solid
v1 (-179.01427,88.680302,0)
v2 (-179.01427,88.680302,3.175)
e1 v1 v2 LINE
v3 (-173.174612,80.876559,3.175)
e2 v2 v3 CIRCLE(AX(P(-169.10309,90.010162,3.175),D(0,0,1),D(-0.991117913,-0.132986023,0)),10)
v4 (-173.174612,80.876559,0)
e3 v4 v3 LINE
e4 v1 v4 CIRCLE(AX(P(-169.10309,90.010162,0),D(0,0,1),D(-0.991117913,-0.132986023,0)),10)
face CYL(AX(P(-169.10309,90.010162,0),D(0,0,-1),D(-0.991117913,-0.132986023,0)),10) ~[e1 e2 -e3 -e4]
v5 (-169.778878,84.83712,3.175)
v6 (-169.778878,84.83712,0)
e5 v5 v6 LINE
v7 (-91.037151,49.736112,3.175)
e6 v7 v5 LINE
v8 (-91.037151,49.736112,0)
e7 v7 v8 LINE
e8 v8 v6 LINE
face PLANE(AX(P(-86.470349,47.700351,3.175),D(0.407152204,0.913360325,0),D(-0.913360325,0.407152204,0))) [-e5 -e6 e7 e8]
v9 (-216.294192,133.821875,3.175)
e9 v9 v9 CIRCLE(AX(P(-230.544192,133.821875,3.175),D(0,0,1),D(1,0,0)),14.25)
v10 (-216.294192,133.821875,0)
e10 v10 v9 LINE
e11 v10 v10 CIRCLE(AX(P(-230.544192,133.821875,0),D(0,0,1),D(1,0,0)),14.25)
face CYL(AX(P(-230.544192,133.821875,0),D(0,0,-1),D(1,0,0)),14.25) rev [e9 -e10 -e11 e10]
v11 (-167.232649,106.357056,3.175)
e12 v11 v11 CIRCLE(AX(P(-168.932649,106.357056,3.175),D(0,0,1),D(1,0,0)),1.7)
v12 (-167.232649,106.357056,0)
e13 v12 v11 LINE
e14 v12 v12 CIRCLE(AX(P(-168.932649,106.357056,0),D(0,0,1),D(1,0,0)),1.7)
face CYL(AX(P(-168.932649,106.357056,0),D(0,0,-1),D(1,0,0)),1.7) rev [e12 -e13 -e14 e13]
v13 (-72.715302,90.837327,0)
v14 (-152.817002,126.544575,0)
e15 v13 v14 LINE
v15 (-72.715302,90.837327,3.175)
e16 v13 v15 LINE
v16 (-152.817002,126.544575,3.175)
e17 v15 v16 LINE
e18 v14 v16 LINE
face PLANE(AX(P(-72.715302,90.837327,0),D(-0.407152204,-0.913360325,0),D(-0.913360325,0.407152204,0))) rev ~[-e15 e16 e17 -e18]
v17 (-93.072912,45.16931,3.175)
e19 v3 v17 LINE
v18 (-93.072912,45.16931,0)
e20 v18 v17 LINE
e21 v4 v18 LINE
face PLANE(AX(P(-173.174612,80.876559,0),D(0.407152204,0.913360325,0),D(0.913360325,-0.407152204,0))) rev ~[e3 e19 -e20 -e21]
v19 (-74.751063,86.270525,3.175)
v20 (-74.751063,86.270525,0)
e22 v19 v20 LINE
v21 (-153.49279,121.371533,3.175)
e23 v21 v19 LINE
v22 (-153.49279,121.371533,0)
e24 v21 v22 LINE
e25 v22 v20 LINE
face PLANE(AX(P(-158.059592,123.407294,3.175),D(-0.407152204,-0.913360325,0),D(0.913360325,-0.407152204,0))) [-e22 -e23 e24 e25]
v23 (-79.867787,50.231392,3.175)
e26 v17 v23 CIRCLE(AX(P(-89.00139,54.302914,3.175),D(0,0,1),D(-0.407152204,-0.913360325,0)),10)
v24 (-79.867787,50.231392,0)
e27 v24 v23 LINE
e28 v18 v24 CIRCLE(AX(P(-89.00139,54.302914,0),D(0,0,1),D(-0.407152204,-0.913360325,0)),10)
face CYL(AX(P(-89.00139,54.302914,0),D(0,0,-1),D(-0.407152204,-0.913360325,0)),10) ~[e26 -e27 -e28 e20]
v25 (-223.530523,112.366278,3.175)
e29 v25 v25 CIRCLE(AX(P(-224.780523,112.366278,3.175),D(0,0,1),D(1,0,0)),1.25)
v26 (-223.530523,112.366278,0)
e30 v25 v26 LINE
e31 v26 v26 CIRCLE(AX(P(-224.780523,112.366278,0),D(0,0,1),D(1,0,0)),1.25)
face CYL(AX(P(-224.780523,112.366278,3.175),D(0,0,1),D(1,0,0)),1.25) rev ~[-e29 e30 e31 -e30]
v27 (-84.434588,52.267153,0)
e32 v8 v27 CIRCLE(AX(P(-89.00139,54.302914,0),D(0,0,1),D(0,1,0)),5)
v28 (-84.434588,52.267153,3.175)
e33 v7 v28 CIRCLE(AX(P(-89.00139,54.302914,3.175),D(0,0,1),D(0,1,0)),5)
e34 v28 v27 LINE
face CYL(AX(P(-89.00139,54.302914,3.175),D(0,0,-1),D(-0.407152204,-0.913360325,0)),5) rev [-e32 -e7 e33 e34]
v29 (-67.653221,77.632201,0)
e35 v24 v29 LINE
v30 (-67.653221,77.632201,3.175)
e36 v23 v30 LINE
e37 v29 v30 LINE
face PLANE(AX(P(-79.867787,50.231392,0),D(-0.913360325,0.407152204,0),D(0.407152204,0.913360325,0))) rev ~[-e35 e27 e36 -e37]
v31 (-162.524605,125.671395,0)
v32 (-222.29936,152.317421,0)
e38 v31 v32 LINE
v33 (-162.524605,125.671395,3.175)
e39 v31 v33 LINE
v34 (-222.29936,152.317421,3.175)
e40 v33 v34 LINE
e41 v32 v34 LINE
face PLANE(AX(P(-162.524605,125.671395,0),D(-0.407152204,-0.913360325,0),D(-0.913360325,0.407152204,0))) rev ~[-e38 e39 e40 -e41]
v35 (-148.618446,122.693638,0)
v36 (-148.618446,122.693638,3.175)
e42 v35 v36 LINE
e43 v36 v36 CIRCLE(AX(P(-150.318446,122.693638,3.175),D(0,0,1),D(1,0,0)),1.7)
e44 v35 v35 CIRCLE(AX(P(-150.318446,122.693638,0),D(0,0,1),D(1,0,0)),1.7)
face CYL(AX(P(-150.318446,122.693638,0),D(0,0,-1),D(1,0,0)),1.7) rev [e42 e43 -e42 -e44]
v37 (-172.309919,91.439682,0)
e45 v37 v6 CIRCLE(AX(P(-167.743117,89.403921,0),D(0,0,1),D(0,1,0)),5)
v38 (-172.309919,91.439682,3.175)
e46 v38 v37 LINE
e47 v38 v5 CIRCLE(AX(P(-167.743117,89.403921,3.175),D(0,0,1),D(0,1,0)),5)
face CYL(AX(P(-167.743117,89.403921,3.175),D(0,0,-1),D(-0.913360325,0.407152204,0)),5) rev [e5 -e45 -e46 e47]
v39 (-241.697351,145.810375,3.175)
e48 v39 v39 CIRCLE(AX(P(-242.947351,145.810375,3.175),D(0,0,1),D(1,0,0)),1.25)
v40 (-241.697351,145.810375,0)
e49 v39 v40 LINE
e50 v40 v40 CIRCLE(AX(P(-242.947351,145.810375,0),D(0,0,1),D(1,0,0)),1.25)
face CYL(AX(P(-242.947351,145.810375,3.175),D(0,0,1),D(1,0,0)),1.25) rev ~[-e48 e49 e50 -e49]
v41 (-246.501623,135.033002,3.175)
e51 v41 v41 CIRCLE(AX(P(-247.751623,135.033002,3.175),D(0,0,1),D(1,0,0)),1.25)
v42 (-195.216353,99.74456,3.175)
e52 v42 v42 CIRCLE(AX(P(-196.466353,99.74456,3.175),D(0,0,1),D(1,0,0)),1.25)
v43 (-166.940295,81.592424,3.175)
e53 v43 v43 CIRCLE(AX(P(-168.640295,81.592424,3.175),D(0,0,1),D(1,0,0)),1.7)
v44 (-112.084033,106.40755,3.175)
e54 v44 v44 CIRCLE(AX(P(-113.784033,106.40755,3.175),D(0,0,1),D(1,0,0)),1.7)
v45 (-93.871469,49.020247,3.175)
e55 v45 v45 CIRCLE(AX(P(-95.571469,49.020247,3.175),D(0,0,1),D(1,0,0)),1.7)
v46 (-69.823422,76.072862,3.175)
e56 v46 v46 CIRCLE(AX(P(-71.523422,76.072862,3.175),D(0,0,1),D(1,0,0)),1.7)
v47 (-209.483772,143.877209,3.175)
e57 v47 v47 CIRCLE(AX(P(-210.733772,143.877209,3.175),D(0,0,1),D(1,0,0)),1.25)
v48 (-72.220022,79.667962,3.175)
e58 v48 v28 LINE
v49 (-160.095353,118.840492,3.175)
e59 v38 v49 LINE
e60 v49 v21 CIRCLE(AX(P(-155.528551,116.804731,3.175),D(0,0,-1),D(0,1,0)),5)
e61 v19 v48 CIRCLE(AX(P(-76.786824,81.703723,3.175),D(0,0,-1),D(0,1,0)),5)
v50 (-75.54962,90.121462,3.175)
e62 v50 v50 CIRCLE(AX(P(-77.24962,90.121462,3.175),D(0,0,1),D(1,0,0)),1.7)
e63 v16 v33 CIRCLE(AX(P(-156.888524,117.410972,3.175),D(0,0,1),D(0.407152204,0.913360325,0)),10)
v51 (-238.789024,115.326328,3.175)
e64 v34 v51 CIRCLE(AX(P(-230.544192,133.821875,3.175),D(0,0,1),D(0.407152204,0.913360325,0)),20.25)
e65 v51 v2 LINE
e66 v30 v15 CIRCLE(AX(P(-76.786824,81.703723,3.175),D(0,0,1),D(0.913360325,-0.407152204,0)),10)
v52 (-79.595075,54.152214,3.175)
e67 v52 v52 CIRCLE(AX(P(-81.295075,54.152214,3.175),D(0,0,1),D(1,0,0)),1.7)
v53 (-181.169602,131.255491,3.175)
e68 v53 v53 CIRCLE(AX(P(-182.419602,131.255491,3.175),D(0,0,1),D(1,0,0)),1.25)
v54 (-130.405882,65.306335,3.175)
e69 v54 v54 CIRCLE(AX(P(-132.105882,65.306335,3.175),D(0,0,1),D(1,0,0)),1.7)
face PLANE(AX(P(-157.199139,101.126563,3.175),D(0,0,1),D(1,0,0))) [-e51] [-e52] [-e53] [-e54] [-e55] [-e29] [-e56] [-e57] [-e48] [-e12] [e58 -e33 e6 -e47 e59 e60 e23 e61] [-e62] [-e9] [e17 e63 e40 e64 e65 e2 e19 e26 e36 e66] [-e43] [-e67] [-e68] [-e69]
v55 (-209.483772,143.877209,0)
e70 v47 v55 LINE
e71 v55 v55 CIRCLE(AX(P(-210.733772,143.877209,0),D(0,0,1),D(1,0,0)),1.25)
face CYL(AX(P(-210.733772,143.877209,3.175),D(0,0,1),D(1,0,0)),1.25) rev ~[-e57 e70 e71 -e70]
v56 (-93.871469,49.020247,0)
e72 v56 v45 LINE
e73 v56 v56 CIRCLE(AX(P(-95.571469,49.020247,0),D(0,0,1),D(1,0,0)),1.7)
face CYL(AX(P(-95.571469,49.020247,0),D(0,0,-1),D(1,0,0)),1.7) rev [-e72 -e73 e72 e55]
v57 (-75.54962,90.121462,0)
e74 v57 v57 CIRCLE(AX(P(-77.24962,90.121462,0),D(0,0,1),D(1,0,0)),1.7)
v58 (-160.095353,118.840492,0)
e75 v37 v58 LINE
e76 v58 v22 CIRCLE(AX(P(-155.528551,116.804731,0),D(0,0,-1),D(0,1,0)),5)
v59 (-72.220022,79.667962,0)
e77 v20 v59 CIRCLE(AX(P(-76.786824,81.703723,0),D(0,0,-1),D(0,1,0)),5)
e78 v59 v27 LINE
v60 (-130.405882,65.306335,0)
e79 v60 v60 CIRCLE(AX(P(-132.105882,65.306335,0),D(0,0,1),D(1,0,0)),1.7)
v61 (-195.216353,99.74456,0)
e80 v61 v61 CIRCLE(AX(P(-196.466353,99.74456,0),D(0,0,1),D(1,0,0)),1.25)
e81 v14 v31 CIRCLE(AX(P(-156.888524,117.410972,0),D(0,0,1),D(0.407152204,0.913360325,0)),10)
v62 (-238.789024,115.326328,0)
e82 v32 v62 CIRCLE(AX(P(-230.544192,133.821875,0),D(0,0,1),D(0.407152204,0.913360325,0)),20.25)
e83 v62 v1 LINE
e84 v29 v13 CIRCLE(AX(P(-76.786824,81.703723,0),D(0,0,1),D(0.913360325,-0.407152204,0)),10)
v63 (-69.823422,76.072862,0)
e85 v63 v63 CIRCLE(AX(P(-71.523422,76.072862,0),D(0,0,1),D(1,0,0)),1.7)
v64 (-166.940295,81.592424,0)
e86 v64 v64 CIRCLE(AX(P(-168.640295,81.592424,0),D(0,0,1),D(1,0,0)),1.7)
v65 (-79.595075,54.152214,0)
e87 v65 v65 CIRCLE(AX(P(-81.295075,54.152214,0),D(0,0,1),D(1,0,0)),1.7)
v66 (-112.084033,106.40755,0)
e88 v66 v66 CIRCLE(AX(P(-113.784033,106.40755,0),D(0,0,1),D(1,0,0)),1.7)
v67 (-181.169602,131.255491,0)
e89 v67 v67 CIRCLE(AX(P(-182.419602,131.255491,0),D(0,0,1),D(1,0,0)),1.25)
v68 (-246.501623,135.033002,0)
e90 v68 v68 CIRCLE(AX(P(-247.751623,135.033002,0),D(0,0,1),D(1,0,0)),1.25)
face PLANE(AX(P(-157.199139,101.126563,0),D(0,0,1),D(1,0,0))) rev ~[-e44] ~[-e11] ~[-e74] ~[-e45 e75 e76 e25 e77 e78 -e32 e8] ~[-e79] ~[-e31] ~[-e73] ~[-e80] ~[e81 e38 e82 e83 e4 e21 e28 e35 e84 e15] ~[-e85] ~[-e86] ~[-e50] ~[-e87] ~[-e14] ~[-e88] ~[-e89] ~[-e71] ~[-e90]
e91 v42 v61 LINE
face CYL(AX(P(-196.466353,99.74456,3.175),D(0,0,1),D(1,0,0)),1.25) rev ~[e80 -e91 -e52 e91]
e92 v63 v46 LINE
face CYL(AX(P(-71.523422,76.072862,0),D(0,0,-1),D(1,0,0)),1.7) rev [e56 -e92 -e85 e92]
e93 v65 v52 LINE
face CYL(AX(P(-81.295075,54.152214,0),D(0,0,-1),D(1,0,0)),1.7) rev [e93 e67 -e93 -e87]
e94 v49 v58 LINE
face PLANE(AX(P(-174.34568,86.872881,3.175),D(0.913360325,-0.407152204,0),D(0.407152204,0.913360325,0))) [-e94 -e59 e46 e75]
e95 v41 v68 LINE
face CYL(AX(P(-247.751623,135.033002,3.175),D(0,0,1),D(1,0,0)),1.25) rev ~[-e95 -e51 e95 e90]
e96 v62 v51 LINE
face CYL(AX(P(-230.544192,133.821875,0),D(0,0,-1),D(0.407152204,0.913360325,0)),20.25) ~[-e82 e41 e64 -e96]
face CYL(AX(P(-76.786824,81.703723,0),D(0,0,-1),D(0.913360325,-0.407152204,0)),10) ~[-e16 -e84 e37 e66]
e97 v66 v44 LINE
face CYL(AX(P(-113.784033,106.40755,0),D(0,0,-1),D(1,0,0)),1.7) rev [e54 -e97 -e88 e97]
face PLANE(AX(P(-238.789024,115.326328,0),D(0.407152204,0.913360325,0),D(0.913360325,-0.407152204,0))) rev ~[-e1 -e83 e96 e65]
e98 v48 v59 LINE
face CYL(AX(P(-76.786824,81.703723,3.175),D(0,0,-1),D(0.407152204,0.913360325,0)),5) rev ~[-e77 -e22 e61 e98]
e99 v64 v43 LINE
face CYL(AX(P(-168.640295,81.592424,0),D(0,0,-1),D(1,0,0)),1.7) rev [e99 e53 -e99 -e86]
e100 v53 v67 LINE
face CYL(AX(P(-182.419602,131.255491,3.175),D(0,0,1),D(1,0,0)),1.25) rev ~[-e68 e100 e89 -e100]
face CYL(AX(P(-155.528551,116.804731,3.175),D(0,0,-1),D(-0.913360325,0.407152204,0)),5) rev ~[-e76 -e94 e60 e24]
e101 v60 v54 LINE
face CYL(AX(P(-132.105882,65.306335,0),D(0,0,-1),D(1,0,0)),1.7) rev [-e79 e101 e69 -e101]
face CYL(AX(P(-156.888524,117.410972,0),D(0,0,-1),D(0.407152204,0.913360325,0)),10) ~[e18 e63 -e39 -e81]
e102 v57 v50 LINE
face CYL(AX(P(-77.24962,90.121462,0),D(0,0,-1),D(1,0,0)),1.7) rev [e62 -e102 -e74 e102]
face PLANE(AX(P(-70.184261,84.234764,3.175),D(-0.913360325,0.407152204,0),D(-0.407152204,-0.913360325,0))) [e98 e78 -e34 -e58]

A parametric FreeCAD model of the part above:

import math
import FreeCAD as App
import Part
import Sketcher

V = App.Vector


def edges_at(feature, points):
    """Names of the edges that pass closest to the given points."""
    edges = feature.Shape.Edges
    near = lambda p: min(range(len(edges)), key=lambda i: edges[i].distToShape(Part.Vertex(*p))[0])
    return sorted({f"Edge{near(p) + 1}" for p in points})

doc = App.newDocument("Part")
params = doc.addObject("Spreadsheet::Sheet", "Params")
for row, (alias, value) in enumerate([
    ("sketch1_radius", "10 mm"),
    ("sketch1_diameter", "3.4 mm"),
    ("sketch1_diameter2", "28.5 mm"),
    ("sketch1_radius2", "20.25 mm"),
    ("sketch1_length", "30 mm"),
    ("pad1_length", "3.175 mm"),
    ("sketch2_diameter", "2.5 mm"),
    ("sketch3_length", "40 mm"),
    ("pocket2_length", "10 mm"),
    ("fillet_radius", "5 mm"),
    ("fillet2_radius", "5 mm"),
], start=1):
    params.set(f"A{row}", alias)
    params.set(f"B{row}", "=" + value)
    params.setAlias(f"B{row}", alias)

body = doc.addObject("PartDesign::Body", "Body")

# Sketch on XY plane
sketch1 = body.newObject("Sketcher::SketchObject", "Sketch")
sketch1.AttachmentSupport = (doc.getObject("XY_Plane"), [""])
sketch1.MapMode = "FlatFace"
sketch1.addGeometry([
    Part.LineSegment(V(-72.7, 90.8, 0), V(-152.8, 126.5, 0)),  # 0
    Part.ArcOfCircle(Part.Circle(V(-156.9, 117.4, 0), V(0, 0, 1), 10), math.radians(66), math.radians(124)),  # 1
    Part.LineSegment(V(-162.5, 125.7, 0), V(-222.3, 152.3, 0)),  # 2
    Part.ArcOfCircle(Part.Circle(V(-230.5, 133.8, 0), V(0, 0, 1), 20.2), math.radians(66), math.radians(246)),  # 3
    Part.LineSegment(V(-238.8, 115.3, 0), V(-179, 88.7, 0)),  # 4
    Part.ArcOfCircle(Part.Circle(V(-169.1, 90, 0), V(0, 0, 1), 10), math.radians(-172), math.radians(-114)),  # 5
    Part.LineSegment(V(-173.2, 80.9, 0), V(-93.1, 45.2, 0)),  # 6
    Part.ArcOfCircle(Part.Circle(V(-89, 54.3, 0), V(0, 0, 1), 10), math.radians(-114), math.radians(-24)),  # 7
    Part.LineSegment(V(-79.9, 50.2, 0), V(-67.7, 77.6, 0)),  # 8
    Part.ArcOfCircle(Part.Circle(V(-76.8, 81.7, 0), V(0, 0, 1), 10), math.radians(-24), math.radians(66)),  # 9
    Part.Circle(V(-168.6, 81.6, 0), V(0, 0, 1), 1.7),  # 10
    Part.Circle(V(-132.1, 65.3, 0), V(0, 0, 1), 1.7),  # 11
    Part.Circle(V(-95.6, 49, 0), V(0, 0, 1), 1.7),  # 12
    Part.Circle(V(-81.3, 54.2, 0), V(0, 0, 1), 1.7),  # 13
    Part.Circle(V(-71.5, 76.1, 0), V(0, 0, 1), 1.7),  # 14
    Part.Circle(V(-77.2, 90.1, 0), V(0, 0, 1), 1.7),  # 15
    Part.Circle(V(-168.9, 106.4, 0), V(0, 0, 1), 1.7),  # 16
    Part.Circle(V(-230.5, 133.8, 0), V(0, 0, 1), 14.2),  # 17
    Part.Circle(V(-113.8, 106.4, 0), V(0, 0, 1), 1.7),  # 18
    Part.Circle(V(-150.3, 122.7, 0), V(0, 0, 1), 1.7),  # 19
], False)
sketch1.addConstraint([
    Sketcher.Constraint("Tangent", 0, 2, 1, 1),
    Sketcher.Constraint("Coincident", 1, 2, 2, 1),
    Sketcher.Constraint("Tangent", 2, 2, 3, 1),
    Sketcher.Constraint("Tangent", 3, 2, 4, 1),
    Sketcher.Constraint("Coincident", 4, 2, 5, 1),
    Sketcher.Constraint("Tangent", 5, 2, 6, 1),
    Sketcher.Constraint("Tangent", 6, 2, 7, 1),
    Sketcher.Constraint("Tangent", 7, 2, 8, 1),
    Sketcher.Constraint("Tangent", 8, 2, 9, 1),
    Sketcher.Constraint("Tangent", 9, 2, 0, 1),
    Sketcher.Constraint("Coincident", 17, 3, 3, 3),
    Sketcher.Constraint("Equal", 1, 5),
    Sketcher.Constraint("Equal", 5, 7),
    Sketcher.Constraint("Equal", 7, 9),
    Sketcher.Constraint("Equal", 10, 11),
    Sketcher.Constraint("Equal", 11, 12),
    Sketcher.Constraint("Equal", 12, 13),
    Sketcher.Constraint("Equal", 13, 14),
    Sketcher.Constraint("Equal", 14, 15),
    Sketcher.Constraint("Equal", 15, 16),
    Sketcher.Constraint("Equal", 16, 18),
    Sketcher.Constraint("Equal", 18, 19),
    Sketcher.Constraint("Parallel", 0, 2),
    Sketcher.Constraint("Parallel", 2, 4),
    Sketcher.Constraint("Parallel", 4, 6),
    Sketcher.Constraint("Perpendicular", 6, 8),
    Sketcher.Constraint("Equal", 2, 4),
    Sketcher.Constraint("Equal", 0, 6),
    Sketcher.Constraint("Radius", 1, 10.0),
    Sketcher.Constraint("Diameter", 10, 3.4),
    Sketcher.Constraint("Diameter", 17, 28.5),
    Sketcher.Constraint("Radius", 3, 20.25),
    Sketcher.Constraint("Distance", 8, 30.0),
    Sketcher.Constraint("Distance", 0, 87.7),
    Sketcher.Constraint("DistanceY", -1, 1, 4, 2, 88.680302),
    Sketcher.Constraint("DistanceY", -1, 1, 8, 2, 77.632201),
    Sketcher.Constraint("DistanceX", 9, 2, -1, 1, 72.715302),
    Sketcher.Constraint("DistanceX", 3, 3, 5, 3, 61.441102),
    Sketcher.Constraint("DistanceY", 10, 3, 9, 3, 0.1113),
    Sketcher.Constraint("DistanceY", 13, 3, 7, 3, 0.1507),
    Sketcher.Constraint("DistanceX", 9, 3, 14, 3, 5.263402),
    Sketcher.Constraint("DistanceY", 14, 3, 15, 3, 14.0486),
    Sketcher.Constraint("DistanceX", 15, 3, 8, 2, 9.596399),
    Sketcher.Constraint("DistanceX", 11, 3, -1, 1, 132.105882),
    Sketcher.Constraint("DistanceX", 12, 3, -1, 1, 95.571469),
    Sketcher.Constraint("DistanceY", -1, 1, 14, 3, 76.072862),
    Sketcher.Constraint("DistanceX", 16, 3, -1, 1, 168.932649),
    Sketcher.Constraint("DistanceY", -1, 1, 18, 3, 106.40755),
    Sketcher.Constraint("DistanceY", -1, 1, 19, 3, 122.693638),
    Sketcher.Constraint("DistanceX", 10, 3, 1, 3, 11.75177),
    Sketcher.Constraint("DistanceY", 11, 3, 10, 3, 16.286088),
    Sketcher.Constraint("DistanceY", 12, 3, 11, 3, 16.286088),
    Sketcher.Constraint("DistanceX", 13, 3, 9, 3, 4.508251),
    Sketcher.Constraint("DistanceY", 11, 3, 16, 3, 41.050721),
    Sketcher.Constraint("DistanceX", 18, 3, 9, 3, 36.997209),
    Sketcher.Constraint("DistanceX", 1, 3, 19, 3, 6.570079),
])
sketch1.setExpression("Constraints[28]", "Params.sketch1_radius")
sketch1.setExpression("Constraints[29]", "Params.sketch1_diameter")
sketch1.setExpression("Constraints[30]", "Params.sketch1_diameter2")
sketch1.setExpression("Constraints[31]", "Params.sketch1_radius2")
sketch1.setExpression("Constraints[32]", "Params.sketch1_length")
pad1 = body.newObject("PartDesign::Pad", "Pad")
pad1.Profile = sketch1
pad1.setExpression("Length", "Params.pad1_length")

# Sketch on XY plane
sketch2 = body.newObject("Sketcher::SketchObject", "Sketch001")
sketch2.AttachmentSupport = (doc.getObject("XY_Plane"), [""])
sketch2.MapMode = "FlatFace"
sketch2.AttachmentOffset = App.Placement(V(0, 0, 3.175), App.Rotation())
sketch2.addGeometry([
    Part.Circle(V(-196.5, 99.7, 0), V(0, 0, 1), 1.2),  # 0
    Part.Circle(V(-224.8, 112.4, 0), V(0, 0, 1), 1.2),  # 1
    Part.Circle(V(-210.7, 143.9, 0), V(0, 0, 1), 1.2),  # 2
    Part.Circle(V(-182.4, 131.3, 0), V(0, 0, 1), 1.2),  # 3
    Part.Circle(V(-242.9, 145.8, 0), V(0, 0, 1), 1.2),  # 4
    Part.Circle(V(-247.8, 135, 0), V(0, 0, 1), 1.2),  # 5
], False)
sketch2.addConstraint([
    Sketcher.Constraint("Equal", 0, 1),
    Sketcher.Constraint("Equal", 1, 2),
    Sketcher.Constraint("Equal", 2, 3),
    Sketcher.Constraint("Equal", 3, 4),
    Sketcher.Constraint("Equal", 4, 5),
    Sketcher.Constraint("Diameter", 0, 2.5),
    Sketcher.Constraint("DistanceX", 5, 3, 1, 3, 22.9711),
    Sketcher.Constraint("DistanceY", -1, 1, 0, 3, 99.74456),
    Sketcher.Constraint("DistanceY", -1, 1, 1, 3, 112.366278),
    Sketcher.Constraint("DistanceY", -1, 1, 2, 3, 143.877209),
    Sketcher.Constraint("DistanceY", -1, 1, 3, 3, 131.255491),
    Sketcher.Constraint("DistanceX", 4, 3, -1, 1, 242.947351),
    Sketcher.Constraint("DistanceX", 1, 3, 0, 3, 28.31417),
    Sketcher.Constraint("DistanceX", 1, 3, 2, 3, 14.046751),
    Sketcher.Constraint("DistanceX", 2, 3, 3, 3, 28.31417),
    Sketcher.Constraint("DistanceX", 4, 3, 2, 3, 32.213579),
    Sketcher.Constraint("DistanceY", 3, 3, 5, 3, 3.777511),
    Sketcher.Constraint("DistanceY", -1, 1, 4, 3, 145.810375),
])
sketch2.setExpression("Constraints[5]", "Params.sketch2_diameter")
pocket1 = body.newObject("PartDesign::Pocket", "Pocket")
pocket1.Profile = sketch2
pocket1.Type = "ThroughAll"

# Sketch on XY plane
sketch3 = body.newObject("Sketcher::SketchObject", "Sketch002")
sketch3.AttachmentSupport = (doc.getObject("XY_Plane"), [""])
sketch3.MapMode = "FlatFace"
sketch3.AttachmentOffset = App.Placement(V(0, 0, 3.175), App.Rotation())
sketch3.addGeometry([
    Part.LineSegment(V(-70, 84, 0), V(-158, 123, 0)),
    Part.LineSegment(V(-158, 123, 0), V(-174, 87, 0)),
    Part.LineSegment(V(-174, 87, 0), V(-86, 48, 0)),
    Part.LineSegment(V(-86, 48, 0), V(-70, 84, 0)),
], False)
sketch3.addConstraint([
    Sketcher.Constraint("Coincident", 0, 2, 1, 1),
    Sketcher.Constraint("Coincident", 1, 2, 2, 1),
    Sketcher.Constraint("Coincident", 2, 2, 3, 1),
    Sketcher.Constraint("Coincident", 3, 2, 0, 1),
    Sketcher.Constraint("Perpendicular", 0, 1),
    Sketcher.Constraint("Perpendicular", 1, 2),
    Sketcher.Constraint("Perpendicular", 2, 3),
    Sketcher.Constraint("Distance", 1, 40.0),
    Sketcher.Constraint("DistanceX", 0, 2, -1, 1, 158.059592),
    Sketcher.Constraint("DistanceX", 1, 2, -1, 1, 174.34568),
    Sketcher.Constraint("DistanceY", -1, 1, 1, 2, 86.872881),
    Sketcher.Constraint("DistanceX", 2, 2, -1, 1, 86.470349),
])
sketch3.setExpression("Constraints[7]", "Params.sketch3_length")
pocket2 = body.newObject("PartDesign::Pocket", "Pocket001")
pocket2.Profile = sketch3
pocket2.setExpression("Length", "Params.pocket2_length")
doc.recompute()

fillet = body.newObject("PartDesign::Fillet", "Fillet")
fillet.Base = (pocket2, edges_at(pocket2, [(-174.346, 86.873, 1.587), (-158.06, 123.407, 1.587)]))
fillet.setExpression("Radius", "Params.fillet_radius")
doc.recompute()

fillet2 = body.newObject("PartDesign::Fillet", "Fillet001")
fillet2.Base = (fillet, edges_at(fillet, [(-70.184, 84.235, 1.587), (-86.47, 47.7, 1.587)]))
fillet2.setExpression("Radius", "Params.fillet2_radius")

doc.recompute()
